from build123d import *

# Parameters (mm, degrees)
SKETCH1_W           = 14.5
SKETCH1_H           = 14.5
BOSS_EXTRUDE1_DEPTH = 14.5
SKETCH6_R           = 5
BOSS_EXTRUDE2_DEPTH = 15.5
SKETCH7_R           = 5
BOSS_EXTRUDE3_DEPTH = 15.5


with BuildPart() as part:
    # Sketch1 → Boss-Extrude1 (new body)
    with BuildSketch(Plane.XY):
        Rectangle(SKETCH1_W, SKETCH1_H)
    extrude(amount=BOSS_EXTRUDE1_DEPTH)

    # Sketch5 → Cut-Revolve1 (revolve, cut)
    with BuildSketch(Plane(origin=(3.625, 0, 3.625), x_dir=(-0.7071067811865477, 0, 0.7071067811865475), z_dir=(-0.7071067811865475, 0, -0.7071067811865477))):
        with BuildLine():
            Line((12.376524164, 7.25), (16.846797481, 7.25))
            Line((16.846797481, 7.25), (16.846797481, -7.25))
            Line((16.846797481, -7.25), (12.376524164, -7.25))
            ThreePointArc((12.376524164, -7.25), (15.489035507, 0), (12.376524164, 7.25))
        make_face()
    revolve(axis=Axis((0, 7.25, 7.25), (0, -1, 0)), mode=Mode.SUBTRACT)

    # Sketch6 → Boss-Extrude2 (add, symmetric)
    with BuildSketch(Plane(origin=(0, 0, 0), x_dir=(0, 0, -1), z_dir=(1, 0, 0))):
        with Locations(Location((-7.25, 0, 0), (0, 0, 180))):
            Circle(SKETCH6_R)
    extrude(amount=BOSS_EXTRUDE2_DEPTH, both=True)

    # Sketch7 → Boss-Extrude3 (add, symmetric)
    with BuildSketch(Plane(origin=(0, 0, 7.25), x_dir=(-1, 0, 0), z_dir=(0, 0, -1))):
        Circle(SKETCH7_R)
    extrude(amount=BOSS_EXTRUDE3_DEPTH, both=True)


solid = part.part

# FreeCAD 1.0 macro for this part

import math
import FreeCAD as App
import Part
import Sketcher
from FreeCAD import Vector
Q = App.Units.Quantity


def add_polygon(sketch, points):
    """Adds a closed chain of lines whose ends are joined by coincident constraints."""
    first, n = sketch.GeometryCount, len(points)
    for a, b in zip(points, points[1:] + points[:1]):
        sketch.addGeometry(Part.LineSegment(App.Vector(*a, 0), App.Vector(*b, 0)), False)
    for i in range(n):
        sketch.addConstraint(Sketcher.Constraint("Coincident", first + i, 2, first + (i + 1) % n, 1))

doc = App.newDocument("Part")
body = doc.addObject("PartDesign::Body", "Body")

# Sketch on XY plane
sketch1 = body.newObject("Sketcher::SketchObject", "Sketch")
sketch1.AttachmentSupport = (doc.getObject("XY_Plane"), [""])
sketch1.MapMode = "FlatFace"
add_polygon(sketch1, [(-7.25, 7.25), (-7.25, -7.25), (7.25, -7.25), (7.25, 7.25)])  # lines 0-3
sketch1.addConstraint([
    Sketcher.Constraint("Vertical", 0),
    Sketcher.Constraint("Horizontal", 1),
    Sketcher.Constraint("Vertical", 2),
    Sketcher.Constraint("Horizontal", 3),
    Sketcher.Constraint("Symmetric", 0, 2, 2, 2, -1, 1),
    Sketcher.Constraint("Equal", 3, 0),
    Sketcher.Constraint("DistanceX", 1, 1, 1, 2, Q("14.5 mm")),
])
pad1 = body.newObject("PartDesign::Pad", "Pad")
pad1.Profile = sketch1
pad1.Length = 14.5

# Sketch on an angled plane
sketch2 = body.newObject("Sketcher::SketchObject", "Sketch001")
sketch2.Placement = App.Placement(Vector(3.625, 0, 3.625), App.Rotation(Vector(-0.707106781, 0, 0.707106781), Vector(0, 0.999999999, 0), Vector(-0.707106781, 0, -0.707106781), "ZXY"))
sketch2.addGeometry([
    Part.LineSegment(Vector(16.846797, 7.25, 0), Vector(12.376524, 7.25, 0)),
    Part.ArcOfCircle(Part.Circle(Vector(5.489036, 0, 0), Vector(0, 0, 1), 10), math.radians(-46.468848), math.radians(46.468848)),
    Part.LineSegment(Vector(12.376524, -7.25, 0), Vector(16.846797, -7.25, 0)),
    Part.LineSegment(Vector(16.846797, -7.25, 0), Vector(16.846797, 7.25, 0)),
], False)
sketch2.addGeometry(Part.LineSegment(Vector(5.126524, 7.25, 0), Vector(5.126524, -7.25, 0)), True)  # axis
sketch2.addConstraint([
    Sketcher.Constraint("Coincident", 0, 2, 1, 2),
    Sketcher.Constraint("Coincident", 1, 1, 2, 1),
    Sketcher.Constraint("Coincident", 2, 2, 3, 1),
    Sketcher.Constraint("Coincident", 3, 2, 0, 1),
    Sketcher.Constraint("Horizontal", 0),
    Sketcher.Constraint("Horizontal", 2),
    Sketcher.Constraint("Vertical", 3),
    Sketcher.Constraint("Vertical", 4),
    Sketcher.Constraint("Symmetric", 0, 2, 1, 1, -1),
    Sketcher.Constraint("Horizontal", 3, 2, 4, 1),
    Sketcher.Constraint("Horizontal", 2, 2, 4, 2),
    Sketcher.Constraint("Radius", 1, Q("10 mm")),
    Sketcher.Constraint("DistanceY", 3, 1, 3, 2, Q("14.5 mm")),
    Sketcher.Constraint("DistanceX", 4, 1, 0, 2, Q("7.25 mm")),
    Sketcher.Constraint("DistanceX", 0, 2, 0, 1, Q("4.470273 mm")),
    Sketcher.Constraint("DistanceX", -1, 1, 1, 3, Q("5.489036 mm")),
])
groove = body.newObject("PartDesign::Groove", "Groove")
groove.Profile = sketch2
groove.ReferenceAxis = (sketch2, ["Axis0"])
groove.Angle = 360

# Sketch on YZ plane
sketch3 = body.newObject("Sketcher::SketchObject", "Sketch002")
sketch3.AttachmentSupport = (doc.getObject("YZ_Plane"), [""])
sketch3.MapMode = "FlatFace"
sketch3.addGeometry(Part.Circle(Vector(0, 7.25, 0), Vector(0, 0, 1), 5), False)
sketch3.addConstraint([
    Sketcher.Constraint("PointOnObject", 0, 3, -2),
    Sketcher.Constraint("Diameter", 0, Q("10 mm")),
    Sketcher.Constraint("DistanceY", -1, 1, 0, 3, Q("7.25 mm")),
])
pad2 = body.newObject("PartDesign::Pad", "Pad001")
pad2.Profile = sketch3
pad2.Length = 31
pad2.Midplane = True

# Sketch on XY plane
sketch4 = body.newObject("Sketcher::SketchObject", "Sketch003")
sketch4.AttachmentSupport = (doc.getObject("XY_Plane"), [""])
sketch4.MapMode = "FlatFace"
sketch4.AttachmentOffset = App.Placement(Vector(0, 0, 7.25), App.Rotation())
sketch4.addGeometry(Part.Circle(Vector(0, 0, 0), Vector(0, 0, 1), 5), False)
sketch4.addConstraint([
    Sketcher.Constraint("Coincident", 0, 3, -1, 1),
    Sketcher.Constraint("Diameter", 0, Q("10 mm")),
])
pad3 = body.newObject("PartDesign::Pad", "Pad002")
pad3.Profile = sketch4
pad3.Length = 31
pad3.Midplane = True

doc.recompute()
